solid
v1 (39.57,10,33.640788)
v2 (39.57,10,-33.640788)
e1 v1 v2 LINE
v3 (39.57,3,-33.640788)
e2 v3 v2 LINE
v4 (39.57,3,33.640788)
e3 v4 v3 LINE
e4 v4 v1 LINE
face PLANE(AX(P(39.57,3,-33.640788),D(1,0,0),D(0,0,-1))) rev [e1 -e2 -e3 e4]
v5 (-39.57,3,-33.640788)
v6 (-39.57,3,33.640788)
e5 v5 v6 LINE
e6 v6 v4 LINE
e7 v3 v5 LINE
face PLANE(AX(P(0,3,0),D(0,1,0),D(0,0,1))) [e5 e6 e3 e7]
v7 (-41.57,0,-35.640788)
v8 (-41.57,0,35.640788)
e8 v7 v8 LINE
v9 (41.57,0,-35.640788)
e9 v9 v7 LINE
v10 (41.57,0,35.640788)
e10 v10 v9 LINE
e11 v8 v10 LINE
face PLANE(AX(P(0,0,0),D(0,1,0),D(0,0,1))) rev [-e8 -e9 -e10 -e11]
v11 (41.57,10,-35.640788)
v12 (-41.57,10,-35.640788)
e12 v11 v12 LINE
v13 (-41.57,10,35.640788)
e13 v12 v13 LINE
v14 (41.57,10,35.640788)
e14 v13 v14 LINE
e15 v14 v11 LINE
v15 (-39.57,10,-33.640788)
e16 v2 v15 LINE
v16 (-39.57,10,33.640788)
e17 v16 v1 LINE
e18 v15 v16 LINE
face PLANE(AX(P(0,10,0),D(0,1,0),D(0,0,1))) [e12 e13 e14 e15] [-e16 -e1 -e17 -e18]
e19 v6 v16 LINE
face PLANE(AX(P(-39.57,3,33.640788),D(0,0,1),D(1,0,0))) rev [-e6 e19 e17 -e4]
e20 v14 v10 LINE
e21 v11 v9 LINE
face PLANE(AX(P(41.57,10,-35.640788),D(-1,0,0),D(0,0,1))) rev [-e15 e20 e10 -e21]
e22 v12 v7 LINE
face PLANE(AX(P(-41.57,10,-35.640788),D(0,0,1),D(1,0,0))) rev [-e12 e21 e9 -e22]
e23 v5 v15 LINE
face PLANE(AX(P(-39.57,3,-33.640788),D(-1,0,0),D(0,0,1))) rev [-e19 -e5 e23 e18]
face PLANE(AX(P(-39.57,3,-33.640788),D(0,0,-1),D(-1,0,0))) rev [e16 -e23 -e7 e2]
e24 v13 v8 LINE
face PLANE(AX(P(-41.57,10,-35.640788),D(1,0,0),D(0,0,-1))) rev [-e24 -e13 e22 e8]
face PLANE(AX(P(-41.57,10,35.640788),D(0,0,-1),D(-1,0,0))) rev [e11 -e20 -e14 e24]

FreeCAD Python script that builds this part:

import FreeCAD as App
import Part
import Sketcher

doc = App.newDocument("Part")
body = doc.addObject("PartDesign::Body", "Body")

# Sketch on XZ plane
sketch1 = body.newObject("Sketcher::SketchObject", "Sketch")
sketch1.AttachmentSupport = (doc.getObject("XZ_Plane"), [""])
sketch1.MapMode = "FlatFace"
sketch1.addGeometry([
    Part.LineSegment(App.Vector(-41.57, -35.640788, 0), App.Vector(-41.57, 35.640788, 0)),
    Part.LineSegment(App.Vector(-41.57, 35.640788, 0), App.Vector(41.57, 35.640788, 0)),
    Part.LineSegment(App.Vector(41.57, 35.640788, 0), App.Vector(41.57, -35.640788, 0)),
    Part.LineSegment(App.Vector(41.57, -35.640788, 0), App.Vector(-41.57, -35.640788, 0)),
], False)
sketch1.addConstraint([
    Sketcher.Constraint("Coincident", 0, 2, 1, 1),
    Sketcher.Constraint("Coincident", 1, 2, 2, 1),
    Sketcher.Constraint("Coincident", 2, 2, 3, 1),
    Sketcher.Constraint("Coincident", 3, 2, 0, 1),
    Sketcher.Constraint("Vertical", 0),
    Sketcher.Constraint("Horizontal", 1),
    Sketcher.Constraint("Vertical", 2),
    Sketcher.Constraint("Horizontal", 3),
    Sketcher.Constraint("Symmetric", 0, 2, 2, 2, -1, 1),
    Sketcher.Constraint("DistanceX", 1, 1, 1, 2, 83.14),
    Sketcher.Constraint("DistanceY", 0, 1, 0, 2, 71.281576),
])
pad1 = body.newObject("PartDesign::Pad", "Pad")
pad1.Profile = sketch1
pad1.Length = 10
pad1.Reversed = True

# Sketch on XZ plane
sketch2 = body.newObject("Sketcher::SketchObject", "Sketch001")
sketch2.AttachmentSupport = (doc.getObject("XZ_Plane"), [""])
sketch2.MapMode = "FlatFace"
sketch2.AttachmentOffset = App.Placement(App.Vector(0, 0, -10), App.Rotation())
sketch2.addGeometry([
    Part.LineSegment(App.Vector(-39.57, -33.640788, 0), App.Vector(-39.57, 33.640788, 0)),
    Part.LineSegment(App.Vector(-39.57, 33.640788, 0), App.Vector(39.57, 33.640788, 0)),
    Part.LineSegment(App.Vector(39.57, 33.640788, 0), App.Vector(39.57, -33.640788, 0)),
    Part.LineSegment(App.Vector(39.57, -33.640788, 0), App.Vector(-39.57, -33.640788, 0)),
], False)
sketch2.addConstraint([
    Sketcher.Constraint("Coincident", 0, 2, 1, 1),
    Sketcher.Constraint("Coincident", 1, 2, 2, 1),
    Sketcher.Constraint("Coincident", 2, 2, 3, 1),
    Sketcher.Constraint("Coincident", 3, 2, 0, 1),
    Sketcher.Constraint("Vertical", 0),
    Sketcher.Constraint("Horizontal", 1),
    Sketcher.Constraint("Vertical", 2),
    Sketcher.Constraint("Horizontal", 3),
    Sketcher.Constraint("Symmetric", 0, 2, 2, 2, -1, 1),
    Sketcher.Constraint("DistanceX", 1, 1, 1, 2, 79.14),
    Sketcher.Constraint("DistanceY", 0, 1, 0, 2, 67.281576),
])
pocket1 = body.newObject("PartDesign::Pocket", "Pocket")
pocket1.Profile = sketch2
pocket1.Length = 7
pocket1.Reversed = True

doc.recompute()
